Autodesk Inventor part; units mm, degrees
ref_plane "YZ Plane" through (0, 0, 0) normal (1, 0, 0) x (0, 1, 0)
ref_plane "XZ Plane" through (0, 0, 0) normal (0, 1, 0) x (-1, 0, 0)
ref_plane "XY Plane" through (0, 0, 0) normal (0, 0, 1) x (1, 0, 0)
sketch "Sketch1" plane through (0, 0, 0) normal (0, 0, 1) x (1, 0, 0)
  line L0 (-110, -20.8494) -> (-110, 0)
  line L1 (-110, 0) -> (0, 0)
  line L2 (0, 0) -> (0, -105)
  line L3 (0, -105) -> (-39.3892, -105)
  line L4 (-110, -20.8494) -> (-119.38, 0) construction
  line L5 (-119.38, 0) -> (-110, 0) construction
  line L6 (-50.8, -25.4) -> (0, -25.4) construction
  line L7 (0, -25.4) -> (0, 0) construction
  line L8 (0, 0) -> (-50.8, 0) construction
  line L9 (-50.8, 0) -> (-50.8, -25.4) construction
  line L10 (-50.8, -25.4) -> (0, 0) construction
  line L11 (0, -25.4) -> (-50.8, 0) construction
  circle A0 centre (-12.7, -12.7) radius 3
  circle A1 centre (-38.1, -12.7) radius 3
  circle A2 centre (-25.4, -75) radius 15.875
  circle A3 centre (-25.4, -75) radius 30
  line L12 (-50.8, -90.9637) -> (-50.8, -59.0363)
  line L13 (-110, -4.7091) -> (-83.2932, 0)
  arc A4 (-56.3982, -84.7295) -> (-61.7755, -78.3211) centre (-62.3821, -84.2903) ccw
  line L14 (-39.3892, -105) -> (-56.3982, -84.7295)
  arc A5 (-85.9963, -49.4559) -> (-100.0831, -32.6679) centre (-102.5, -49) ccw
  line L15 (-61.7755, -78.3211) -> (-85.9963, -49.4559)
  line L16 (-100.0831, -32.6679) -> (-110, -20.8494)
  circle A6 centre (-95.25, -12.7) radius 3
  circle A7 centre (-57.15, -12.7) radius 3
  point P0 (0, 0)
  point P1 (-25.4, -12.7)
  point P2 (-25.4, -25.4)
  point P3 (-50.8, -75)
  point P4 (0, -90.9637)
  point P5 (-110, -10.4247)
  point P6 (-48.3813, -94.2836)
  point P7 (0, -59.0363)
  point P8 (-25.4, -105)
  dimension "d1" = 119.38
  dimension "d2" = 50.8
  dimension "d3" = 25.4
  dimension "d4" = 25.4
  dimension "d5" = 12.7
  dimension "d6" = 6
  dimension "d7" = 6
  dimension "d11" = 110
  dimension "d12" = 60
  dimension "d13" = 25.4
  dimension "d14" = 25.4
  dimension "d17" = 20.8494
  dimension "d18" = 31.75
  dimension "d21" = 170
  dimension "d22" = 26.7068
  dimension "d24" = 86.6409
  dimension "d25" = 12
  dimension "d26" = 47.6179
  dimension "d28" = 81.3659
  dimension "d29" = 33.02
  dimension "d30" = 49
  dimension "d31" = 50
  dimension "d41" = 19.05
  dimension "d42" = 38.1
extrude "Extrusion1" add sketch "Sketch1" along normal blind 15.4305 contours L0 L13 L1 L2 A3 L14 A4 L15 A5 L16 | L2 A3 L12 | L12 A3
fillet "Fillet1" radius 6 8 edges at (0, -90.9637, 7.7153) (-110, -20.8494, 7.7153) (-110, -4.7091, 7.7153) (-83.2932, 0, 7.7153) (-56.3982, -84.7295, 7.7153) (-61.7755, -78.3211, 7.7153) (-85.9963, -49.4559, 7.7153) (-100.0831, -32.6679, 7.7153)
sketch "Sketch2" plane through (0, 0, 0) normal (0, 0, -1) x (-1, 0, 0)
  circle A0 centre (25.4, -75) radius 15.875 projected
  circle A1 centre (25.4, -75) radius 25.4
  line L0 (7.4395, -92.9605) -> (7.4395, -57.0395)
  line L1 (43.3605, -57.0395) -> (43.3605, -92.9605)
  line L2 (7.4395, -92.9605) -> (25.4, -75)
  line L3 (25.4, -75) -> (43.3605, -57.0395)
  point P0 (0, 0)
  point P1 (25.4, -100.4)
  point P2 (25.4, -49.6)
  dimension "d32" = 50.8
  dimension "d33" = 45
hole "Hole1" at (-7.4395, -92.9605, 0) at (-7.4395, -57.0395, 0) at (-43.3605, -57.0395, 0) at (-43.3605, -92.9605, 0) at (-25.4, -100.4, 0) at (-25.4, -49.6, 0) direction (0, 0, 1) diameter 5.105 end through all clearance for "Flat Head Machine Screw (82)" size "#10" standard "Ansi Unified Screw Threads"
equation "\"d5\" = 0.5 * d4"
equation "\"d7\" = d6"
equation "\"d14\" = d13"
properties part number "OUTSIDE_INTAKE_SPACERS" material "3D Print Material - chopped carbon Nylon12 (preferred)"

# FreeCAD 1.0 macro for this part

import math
import FreeCAD as App
import Part
import Sketcher

V = App.Vector
Q = App.Units.Quantity


def edges_at(feature, points):
    """Names of the edges that pass closest to the given points."""
    edges = feature.Shape.Edges
    near = lambda p: min(range(len(edges)), key=lambda i: edges[i].distToShape(Part.Vertex(*p))[0])
    return sorted({f"Edge{near(p) + 1}" for p in points})

doc = App.newDocument("Part")
body = doc.addObject("PartDesign::Body", "Body")

sketch1 = body.newObject("Sketcher::SketchObject", "Sketch")
sketch1.AttachmentSupport = (doc.getObject("XY_Plane"), [""])
sketch1.MapMode = "FlatFace"
sketch1.addGeometry([
    Part.LineSegment(V(-110, -4.7, 0), V(-110, -20.8, 0)),
    Part.LineSegment(V(-110, -20.8, 0), V(-100.1, -32.7, 0)),
    Part.ArcOfCircle(Part.Circle(V(-102.5, -49, 0), V(0, 0, 1), 16.5), math.radians(-2), math.radians(82)),
    Part.LineSegment(V(-86, -49.5, 0), V(-61.8, -78.3, 0)),
    Part.ArcOfCircle(Part.Circle(V(-62.4, -84.3, 0), V(0, 0, 1), 6), math.radians(-4), math.radians(84)),
    Part.LineSegment(V(-56.4, -84.7, 0), V(-48.4, -94.3, 0)),
    Part.ArcOfCircle(Part.Circle(V(-25.4, -75, 0), V(0, 0, 1), 30), math.radians(-140), math.radians(-32)),
    Part.LineSegment(V(0, -91, 0), V(0, 0, 0)),
    Part.LineSegment(V(0, 0, 0), V(-83.3, 0, 0)),
    Part.LineSegment(V(-83.3, 0, 0), V(-110, -4.7, 0)),
    Part.Circle(V(-95.2, -12.7, 0), V(0, 0, 1), 3),
    Part.Circle(V(-57.1, -12.7, 0), V(0, 0, 1), 3),
    Part.Circle(V(-38.1, -12.7, 0), V(0, 0, 1), 3),
    Part.Circle(V(-12.7, -12.7, 0), V(0, 0, 1), 3),
    Part.Circle(V(-25.4, -75, 0), V(0, 0, 1), 15.9),
], False)
sketch1.addConstraint([
    Sketcher.Constraint("Coincident", 0, 2, 1, 1),
    Sketcher.Constraint("Coincident", 1, 2, 2, 2),
    Sketcher.Constraint("Coincident", 2, 1, 3, 1),
    Sketcher.Constraint("Coincident", 3, 2, 4, 2),
    Sketcher.Constraint("Coincident", 4, 1, 5, 1),
    Sketcher.Constraint("Tangent", 5, 2, 6, 1),
    Sketcher.Constraint("Coincident", 6, 2, 7, 1),
    Sketcher.Constraint("Coincident", 7, 2, 8, 1),
    Sketcher.Constraint("Coincident", 8, 2, 9, 1),
    Sketcher.Constraint("Coincident", 9, 2, 0, 1),
    Sketcher.Constraint("Vertical", 0),
    Sketcher.Constraint("Vertical", 7),
    Sketcher.Constraint("Horizontal", 8),
    Sketcher.Constraint("Coincident", 7, 2, -1, 1),
    Sketcher.Constraint("Coincident", 14, 3, 6, 3),
    Sketcher.Constraint("Equal", 10, 11),
    Sketcher.Constraint("Equal", 11, 12),
    Sketcher.Constraint("Equal", 12, 13),
    Sketcher.Constraint("Parallel", 1, 3),
    Sketcher.Constraint("Parallel", 3, 5),
    Sketcher.Constraint("Horizontal", 10, 3, 11, 3),
    Sketcher.Constraint("Horizontal", 11, 3, 12, 3),
    Sketcher.Constraint("Horizontal", 12, 3, 13, 3),
    Sketcher.Constraint("Diameter", 10, Q("6 mm")),
    Sketcher.Constraint("Radius", 4, Q("6 mm")),
    Sketcher.Constraint("Radius", 6, Q("30 mm")),
    Sketcher.Constraint("Diameter", 14, Q("31.75 mm")),
    Sketcher.Constraint("Angle", 1, Q("-50 deg")),
    Sketcher.Constraint("Angle", 9, Q("-170 deg")),
    Sketcher.Constraint("Radius", 2, Q("16.51 mm")),
    Sketcher.Constraint("DistanceY", 2, 3, -1, 1, Q("49 mm")),
    Sketcher.Constraint("DistanceX", 0, 2, -1, 1, Q("110 mm")),
    Sketcher.Constraint("DistanceX", 6, 3, -1, 1, Q("25.4 mm")),
    Sketcher.Constraint("DistanceY", 10, 3, -1, 1, Q("12.7 mm")),
    Sketcher.Constraint("DistanceX", 12, 3, -1, 1, Q("38.1 mm")),
    Sketcher.Constraint("DistanceX", 13, 3, -1, 1, Q("12.7 mm")),
    Sketcher.Constraint("DistanceX", 10, 3, 11, 3, Q("38.1 mm")),
    Sketcher.Constraint("DistanceX", 11, 3, 6, 3, Q("31.75 mm")),
    Sketcher.Constraint("DistanceY", 6, 3, -1, 1, Q("75 mm")),
    Sketcher.Constraint("DistanceX", 0, 2, 4, 3, Q("47.618 mm")),
    Sketcher.Constraint("DistanceX", 2, 3, -1, 1, Q("102.5 mm")),
    Sketcher.Constraint("DistanceY", 0, 2, -1, 1, Q("20.8494 mm")),
    Sketcher.Constraint("DistanceX", 0, 2, 8, 2, Q("26.7068 mm")),
    Sketcher.Constraint("Distance", 5, Q("12.472 mm")),
    Sketcher.Constraint("DistanceY", 2, 1, -1, 1, Q("49.456 mm")),
])
pad1 = body.newObject("PartDesign::Pad", "Pad")
pad1.Profile = sketch1
pad1.Length = 15.4305
doc.recompute()

fillet = body.newObject("PartDesign::Fillet", "Fillet")
fillet.Base = (pad1, edges_at(pad1, [
    (0, -90.964, 7.715),
    (-110, -20.849, 7.715),
    (-110, -4.709, 7.715),
    (-83.293, 0, 7.715),
    (-56.398, -84.73, 7.715),
    (-61.776, -78.321, 7.715),
    (-85.996, -49.456, 7.715),
    (-100.083, -32.668, 7.715),
]))
fillet.Radius = 6

sketch2 = body.newObject("Sketcher::SketchObject", "Sketch001")
sketch2.AttachmentSupport = (doc.getObject("XY_Plane"), [""])
sketch2.MapMode = "FlatFace"
sketch2.addGeometry([
    Part.Circle(V(-7.4, -93, 0), V(0, 0, 1), 2.6),
    Part.Circle(V(-7.4, -57, 0), V(0, 0, 1), 2.6),
    Part.Circle(V(-43.4, -57, 0), V(0, 0, 1), 2.6),
    Part.Circle(V(-43.4, -93, 0), V(0, 0, 1), 2.6),
    Part.Circle(V(-25.4, -100.4, 0), V(0, 0, 1), 2.6),
    Part.Circle(V(-25.4, -49.6, 0), V(0, 0, 1), 2.6),
], False)
sketch2.addConstraint([
    Sketcher.Constraint("Equal", 0, 1),
    Sketcher.Constraint("Equal", 1, 2),
    Sketcher.Constraint("Equal", 2, 3),
    Sketcher.Constraint("Equal", 3, 4),
    Sketcher.Constraint("Equal", 4, 5),
    Sketcher.Constraint("Horizontal", 1, 3, 2, 3),
    Sketcher.Constraint("Horizontal", 0, 3, 3, 3),
    Sketcher.Constraint("Vertical", 0, 3, 1, 3),
    Sketcher.Constraint("Vertical", 2, 3, 3, 3),
    Sketcher.Constraint("Vertical", 4, 3, 5, 3),
    Sketcher.Constraint("Diameter", 0, Q("5.105 mm")),
    Sketcher.Constraint("DistanceX", 4, 3, -1, 1, Q("25.4 mm")),
    Sketcher.Constraint("DistanceY", 4, 3, -1, 1, Q("100.4 mm")),
    Sketcher.Constraint("DistanceY", 5, 3, -1, 1, Q("49.6 mm")),
    Sketcher.Constraint("DistanceY", 0, 3, 1, 3, Q("35.921 mm")),
    Sketcher.Constraint("DistanceX", 2, 3, 1, 3, Q("35.921 mm")),
    Sketcher.Constraint("DistanceX", 0, 3, -1, 1, Q("7.4395 mm")),
    Sketcher.Constraint("DistanceY", 0, 3, -1, 1, Q("92.9605 mm")),
])
doc.recompute()
hole = body.newObject("PartDesign::Hole", "Hole")
hole.Profile = sketch2
hole.ThreadType = "None"
hole.Diameter = 5.105
hole.DepthType = "ThroughAll"
hole.Reversed = True

doc.recompute()
